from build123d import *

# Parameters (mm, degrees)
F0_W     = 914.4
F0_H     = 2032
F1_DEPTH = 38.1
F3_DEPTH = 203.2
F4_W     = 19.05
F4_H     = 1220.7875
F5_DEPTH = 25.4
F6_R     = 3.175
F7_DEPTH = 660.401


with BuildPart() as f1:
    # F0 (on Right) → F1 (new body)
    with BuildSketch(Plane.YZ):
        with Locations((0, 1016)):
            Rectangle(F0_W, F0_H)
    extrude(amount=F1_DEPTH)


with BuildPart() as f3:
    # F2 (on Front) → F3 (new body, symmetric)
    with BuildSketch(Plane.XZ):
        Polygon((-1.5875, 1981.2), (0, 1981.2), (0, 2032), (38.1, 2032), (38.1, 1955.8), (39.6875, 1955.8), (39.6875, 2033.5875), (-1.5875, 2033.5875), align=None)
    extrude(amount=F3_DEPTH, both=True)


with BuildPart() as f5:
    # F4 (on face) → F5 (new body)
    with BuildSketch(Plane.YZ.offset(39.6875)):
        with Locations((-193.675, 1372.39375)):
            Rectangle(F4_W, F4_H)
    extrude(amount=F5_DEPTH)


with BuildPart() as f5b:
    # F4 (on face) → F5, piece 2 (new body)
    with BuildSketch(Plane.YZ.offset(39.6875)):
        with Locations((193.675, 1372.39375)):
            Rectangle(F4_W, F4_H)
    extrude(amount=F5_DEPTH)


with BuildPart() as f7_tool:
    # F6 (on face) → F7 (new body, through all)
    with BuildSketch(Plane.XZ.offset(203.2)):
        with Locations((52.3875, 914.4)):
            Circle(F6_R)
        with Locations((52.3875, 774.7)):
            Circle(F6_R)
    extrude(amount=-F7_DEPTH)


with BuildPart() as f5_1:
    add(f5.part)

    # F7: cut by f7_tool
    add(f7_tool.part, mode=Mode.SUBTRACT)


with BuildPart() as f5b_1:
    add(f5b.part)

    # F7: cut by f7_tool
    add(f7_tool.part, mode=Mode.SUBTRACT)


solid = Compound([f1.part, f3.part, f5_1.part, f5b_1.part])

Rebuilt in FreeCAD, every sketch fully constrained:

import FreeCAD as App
import Part
import Sketcher
from FreeCAD import Vector
Q = App.Units.Quantity

doc = App.newDocument("Part")
body = doc.addObject("PartDesign::Body", "Body")

# Sketch on YZ plane
sketch1 = body.newObject("Sketcher::SketchObject", "Sketch")
sketch1.AttachmentSupport = (doc.getObject("YZ_Plane"), [""])
sketch1.MapMode = "FlatFace"
sketch1.addGeometry([
    Part.LineSegment(Vector(-457.2, 2032, 0), Vector(-457.2, 0, 0)),
    Part.LineSegment(Vector(-457.2, 0, 0), Vector(457.2, 0, 0)),
    Part.LineSegment(Vector(457.2, 0, 0), Vector(457.2, 2032, 0)),
    Part.LineSegment(Vector(457.2, 2032, 0), Vector(-457.2, 2032, 0)),
], False)
sketch1.addConstraint([
    Sketcher.Constraint("Coincident", 0, 2, 1, 1),
    Sketcher.Constraint("Coincident", 1, 2, 2, 1),
    Sketcher.Constraint("Coincident", 2, 2, 3, 1),
    Sketcher.Constraint("Coincident", 3, 2, 0, 1),
    Sketcher.Constraint("Vertical", 0),
    Sketcher.Constraint("Horizontal", 1),
    Sketcher.Constraint("Vertical", 2),
    Sketcher.Constraint("Horizontal", 3),
    Sketcher.Constraint("Symmetric", 0, 2, 1, 2, -1, 1),
    Sketcher.Constraint("DistanceX", 1, 1, 1, 2, Q("36 in")),
    Sketcher.Constraint("DistanceY", 0, 2, 0, 1, Q("80 in")),
])
pad1 = body.newObject("PartDesign::Pad", "Pad")
pad1.Profile = sketch1
pad1.Length = Q("1.5 in")
body2 = doc.addObject("PartDesign::Body", "Body001")

# Sketch on XZ plane
sketch2 = body2.newObject("Sketcher::SketchObject", "Sketch001")
sketch2.AttachmentSupport = (doc.getObject("XZ_Plane001"), [""])
sketch2.MapMode = "FlatFace"
sketch2.addGeometry([
    Part.LineSegment(Vector(-1.5875, 1981.2, 0), Vector(0, 1981.2, 0)),  # 0
    Part.LineSegment(Vector(0, 1981.2, 0), Vector(0, 2032, 0)),  # 1
    Part.LineSegment(Vector(0, 2032, 0), Vector(38.1, 2032, 0)),  # 2
    Part.LineSegment(Vector(38.1, 2032, 0), Vector(38.1, 1955.8, 0)),  # 3
    Part.LineSegment(Vector(38.1, 1955.8, 0), Vector(39.6875, 1955.8, 0)),  # 4
    Part.LineSegment(Vector(39.6875, 1955.8, 0), Vector(39.6875, 2033.5875, 0)),  # 5
    Part.LineSegment(Vector(39.6875, 2033.5875, 0), Vector(-1.5875, 2033.5875, 0)),  # 6
    Part.LineSegment(Vector(-1.5875, 2033.5875, 0), Vector(-1.5875, 1981.2, 0)),  # 7
], False)
sketch2.addConstraint([
    Sketcher.Constraint("Coincident", 0, 2, 1, 1),
    Sketcher.Constraint("Coincident", 1, 2, 2, 1),
    Sketcher.Constraint("Coincident", 2, 2, 3, 1),
    Sketcher.Constraint("Coincident", 3, 2, 4, 1),
    Sketcher.Constraint("Coincident", 4, 2, 5, 1),
    Sketcher.Constraint("Coincident", 5, 2, 6, 1),
    Sketcher.Constraint("Coincident", 6, 2, 7, 1),
    Sketcher.Constraint("Coincident", 7, 2, 0, 1),
    Sketcher.Constraint("Horizontal", 0),
    Sketcher.Constraint("Vertical", 1),
    Sketcher.Constraint("Horizontal", 2),
    Sketcher.Constraint("Vertical", 3),
    Sketcher.Constraint("Horizontal", 4),
    Sketcher.Constraint("Vertical", 5),
    Sketcher.Constraint("Horizontal", 6),
    Sketcher.Constraint("Vertical", 7),
    Sketcher.Constraint("PointOnObject", 0, 2, -2),
    Sketcher.Constraint("Equal", 0, 4),
    Sketcher.Constraint("DistanceY", 1, 1, 1, 2, Q("2 in")),
    Sketcher.Constraint("DistanceY", 3, 2, 3, 1, Q("3 in")),
    Sketcher.Constraint("DistanceX", 2, 1, 2, 2, Q("1.5 in")),
    Sketcher.Constraint("DistanceY", -1, 1, 0, 2, Q("78 in")),
    Sketcher.Constraint("DistanceX", 0, 1, 0, 2, Q("0.0625 in")),
    Sketcher.Constraint("DistanceY", 5, 1, 5, 2, Q("3.0625 in")),
])
pad2 = body2.newObject("PartDesign::Pad", "Pad001")
pad2.Profile = sketch2
pad2.Length = Q("16 in")
pad2.Midplane = True
body3 = doc.addObject("PartDesign::Body", "Body002")

# Sketch on YZ plane
sketch3 = body3.newObject("Sketcher::SketchObject", "Sketch002")
sketch3.AttachmentSupport = (doc.getObject("YZ_Plane002"), [""])
sketch3.MapMode = "FlatFace"
sketch3.AttachmentOffset = App.Placement(Vector(0, 0, 1.5625 * 25.4), App.Rotation())
sketch3.addGeometry([
    Part.LineSegment(Vector(-203.2, 1982.7875, 0), Vector(-203.2, 762, 0)),
    Part.LineSegment(Vector(-203.2, 762, 0), Vector(-184.15, 762, 0)),
    Part.LineSegment(Vector(-184.15, 762, 0), Vector(-184.15, 1982.7875, 0)),
    Part.LineSegment(Vector(-184.15, 1982.7875, 0), Vector(-203.2, 1982.7875, 0)),
], False)
sketch3.addConstraint([
    Sketcher.Constraint("Coincident", 0, 2, 1, 1),
    Sketcher.Constraint("Coincident", 1, 2, 2, 1),
    Sketcher.Constraint("Coincident", 2, 2, 3, 1),
    Sketcher.Constraint("Coincident", 3, 2, 0, 1),
    Sketcher.Constraint("Vertical", 0),
    Sketcher.Constraint("Horizontal", 1),
    Sketcher.Constraint("Vertical", 2),
    Sketcher.Constraint("Horizontal", 3),
    Sketcher.Constraint("DistanceX", 0, 2, -1, 1, Q("8 in")),
    Sketcher.Constraint("DistanceY", -1, 1, 0, 2, Q("30 in")),
    Sketcher.Constraint("DistanceX", 1, 1, 1, 2, Q("0.75 in")),
    Sketcher.Constraint("DistanceY", 0, 2, 0, 1, Q("48.0625 in")),
])
pad3 = body3.newObject("PartDesign::Pad", "Pad002")
pad3.Profile = sketch3
pad3.Length = Q("1 in")
body4 = doc.addObject("PartDesign::Body", "Body003")

# Sketch on YZ plane
sketch4 = body4.newObject("Sketcher::SketchObject", "Sketch003")
sketch4.AttachmentSupport = (doc.getObject("YZ_Plane003"), [""])
sketch4.MapMode = "FlatFace"
sketch4.AttachmentOffset = App.Placement(Vector(0, 0, 1.5625 * 25.4), App.Rotation())
sketch4.addGeometry([
    Part.LineSegment(Vector(184.15, 1982.7875, 0), Vector(184.15, 762, 0)),
    Part.LineSegment(Vector(184.15, 762, 0), Vector(203.2, 762, 0)),
    Part.LineSegment(Vector(203.2, 762, 0), Vector(203.2, 1982.7875, 0)),
    Part.LineSegment(Vector(203.2, 1982.7875, 0), Vector(184.15, 1982.7875, 0)),
], False)
sketch4.addConstraint([
    Sketcher.Constraint("Coincident", 0, 2, 1, 1),
    Sketcher.Constraint("Coincident", 1, 2, 2, 1),
    Sketcher.Constraint("Coincident", 2, 2, 3, 1),
    Sketcher.Constraint("Coincident", 3, 2, 0, 1),
    Sketcher.Constraint("Vertical", 0),
    Sketcher.Constraint("Horizontal", 1),
    Sketcher.Constraint("Vertical", 2),
    Sketcher.Constraint("Horizontal", 3),
    Sketcher.Constraint("DistanceY", -1, 1, 0, 2, Q("30 in")),
    Sketcher.Constraint("DistanceX", -1, 1, 1, 2, Q("8 in")),
    Sketcher.Constraint("DistanceX", 1, 1, 1, 2, Q("0.75 in")),
    Sketcher.Constraint("DistanceY", 0, 2, 0, 1, Q("48.0625 in")),
])
pad4 = body4.newObject("PartDesign::Pad", "Pad003")
pad4.Profile = sketch4
pad4.Length = Q("1 in")
body5 = doc.addObject("PartDesign::Body", "Body004")
body5.AllowCompound = True

# Sketch on XZ plane
sketch5 = body5.newObject("Sketcher::SketchObject", "Sketch004")
sketch5.AttachmentSupport = (doc.getObject("XZ_Plane004"), [""])
sketch5.MapMode = "FlatFace"
sketch5.AttachmentOffset = App.Placement(Vector(0, 0, 8 * 25.4), App.Rotation())
sketch5.addGeometry([
    Part.Circle(Vector(52.3875, 914.4, 0), Vector(0, 0, 1), 3.175),
    Part.Circle(Vector(52.3875, 774.7, 0), Vector(0, 0, 1), 3.175),
], False)
sketch5.addConstraint([
    Sketcher.Constraint("Equal", 0, 1),
    Sketcher.Constraint("Vertical", 0, 3, 1, 3),
    Sketcher.Constraint("Diameter", 0, Q("0.25 in")),
    Sketcher.Constraint("DistanceY", -1, 1, 0, 3, Q("36 in")),
    Sketcher.Constraint("DistanceY", -1, 1, 1, 3, Q("30.5 in")),
    Sketcher.Constraint("DistanceX", -1, 1, 0, 3, Q("2.0625 in")),
])
pad5 = body5.newObject("PartDesign::Pad", "Pad004")
pad5.Profile = sketch5
pad5.Length = 660.401
pad5.Reversed = True
doc.recompute()

body6 = doc.addObject("PartDesign::Body", "Body005")
body6.BaseFeature = body5
boolean = body3.newObject("PartDesign::Boolean", "Boolean")
boolean.Type = "Cut"
boolean.addObjects([body6])
doc.recompute()

boolean2 = body4.newObject("PartDesign::Boolean", "Boolean001")
boolean2.Type = "Cut"
boolean2.addObjects([body5])

doc.recompute()
